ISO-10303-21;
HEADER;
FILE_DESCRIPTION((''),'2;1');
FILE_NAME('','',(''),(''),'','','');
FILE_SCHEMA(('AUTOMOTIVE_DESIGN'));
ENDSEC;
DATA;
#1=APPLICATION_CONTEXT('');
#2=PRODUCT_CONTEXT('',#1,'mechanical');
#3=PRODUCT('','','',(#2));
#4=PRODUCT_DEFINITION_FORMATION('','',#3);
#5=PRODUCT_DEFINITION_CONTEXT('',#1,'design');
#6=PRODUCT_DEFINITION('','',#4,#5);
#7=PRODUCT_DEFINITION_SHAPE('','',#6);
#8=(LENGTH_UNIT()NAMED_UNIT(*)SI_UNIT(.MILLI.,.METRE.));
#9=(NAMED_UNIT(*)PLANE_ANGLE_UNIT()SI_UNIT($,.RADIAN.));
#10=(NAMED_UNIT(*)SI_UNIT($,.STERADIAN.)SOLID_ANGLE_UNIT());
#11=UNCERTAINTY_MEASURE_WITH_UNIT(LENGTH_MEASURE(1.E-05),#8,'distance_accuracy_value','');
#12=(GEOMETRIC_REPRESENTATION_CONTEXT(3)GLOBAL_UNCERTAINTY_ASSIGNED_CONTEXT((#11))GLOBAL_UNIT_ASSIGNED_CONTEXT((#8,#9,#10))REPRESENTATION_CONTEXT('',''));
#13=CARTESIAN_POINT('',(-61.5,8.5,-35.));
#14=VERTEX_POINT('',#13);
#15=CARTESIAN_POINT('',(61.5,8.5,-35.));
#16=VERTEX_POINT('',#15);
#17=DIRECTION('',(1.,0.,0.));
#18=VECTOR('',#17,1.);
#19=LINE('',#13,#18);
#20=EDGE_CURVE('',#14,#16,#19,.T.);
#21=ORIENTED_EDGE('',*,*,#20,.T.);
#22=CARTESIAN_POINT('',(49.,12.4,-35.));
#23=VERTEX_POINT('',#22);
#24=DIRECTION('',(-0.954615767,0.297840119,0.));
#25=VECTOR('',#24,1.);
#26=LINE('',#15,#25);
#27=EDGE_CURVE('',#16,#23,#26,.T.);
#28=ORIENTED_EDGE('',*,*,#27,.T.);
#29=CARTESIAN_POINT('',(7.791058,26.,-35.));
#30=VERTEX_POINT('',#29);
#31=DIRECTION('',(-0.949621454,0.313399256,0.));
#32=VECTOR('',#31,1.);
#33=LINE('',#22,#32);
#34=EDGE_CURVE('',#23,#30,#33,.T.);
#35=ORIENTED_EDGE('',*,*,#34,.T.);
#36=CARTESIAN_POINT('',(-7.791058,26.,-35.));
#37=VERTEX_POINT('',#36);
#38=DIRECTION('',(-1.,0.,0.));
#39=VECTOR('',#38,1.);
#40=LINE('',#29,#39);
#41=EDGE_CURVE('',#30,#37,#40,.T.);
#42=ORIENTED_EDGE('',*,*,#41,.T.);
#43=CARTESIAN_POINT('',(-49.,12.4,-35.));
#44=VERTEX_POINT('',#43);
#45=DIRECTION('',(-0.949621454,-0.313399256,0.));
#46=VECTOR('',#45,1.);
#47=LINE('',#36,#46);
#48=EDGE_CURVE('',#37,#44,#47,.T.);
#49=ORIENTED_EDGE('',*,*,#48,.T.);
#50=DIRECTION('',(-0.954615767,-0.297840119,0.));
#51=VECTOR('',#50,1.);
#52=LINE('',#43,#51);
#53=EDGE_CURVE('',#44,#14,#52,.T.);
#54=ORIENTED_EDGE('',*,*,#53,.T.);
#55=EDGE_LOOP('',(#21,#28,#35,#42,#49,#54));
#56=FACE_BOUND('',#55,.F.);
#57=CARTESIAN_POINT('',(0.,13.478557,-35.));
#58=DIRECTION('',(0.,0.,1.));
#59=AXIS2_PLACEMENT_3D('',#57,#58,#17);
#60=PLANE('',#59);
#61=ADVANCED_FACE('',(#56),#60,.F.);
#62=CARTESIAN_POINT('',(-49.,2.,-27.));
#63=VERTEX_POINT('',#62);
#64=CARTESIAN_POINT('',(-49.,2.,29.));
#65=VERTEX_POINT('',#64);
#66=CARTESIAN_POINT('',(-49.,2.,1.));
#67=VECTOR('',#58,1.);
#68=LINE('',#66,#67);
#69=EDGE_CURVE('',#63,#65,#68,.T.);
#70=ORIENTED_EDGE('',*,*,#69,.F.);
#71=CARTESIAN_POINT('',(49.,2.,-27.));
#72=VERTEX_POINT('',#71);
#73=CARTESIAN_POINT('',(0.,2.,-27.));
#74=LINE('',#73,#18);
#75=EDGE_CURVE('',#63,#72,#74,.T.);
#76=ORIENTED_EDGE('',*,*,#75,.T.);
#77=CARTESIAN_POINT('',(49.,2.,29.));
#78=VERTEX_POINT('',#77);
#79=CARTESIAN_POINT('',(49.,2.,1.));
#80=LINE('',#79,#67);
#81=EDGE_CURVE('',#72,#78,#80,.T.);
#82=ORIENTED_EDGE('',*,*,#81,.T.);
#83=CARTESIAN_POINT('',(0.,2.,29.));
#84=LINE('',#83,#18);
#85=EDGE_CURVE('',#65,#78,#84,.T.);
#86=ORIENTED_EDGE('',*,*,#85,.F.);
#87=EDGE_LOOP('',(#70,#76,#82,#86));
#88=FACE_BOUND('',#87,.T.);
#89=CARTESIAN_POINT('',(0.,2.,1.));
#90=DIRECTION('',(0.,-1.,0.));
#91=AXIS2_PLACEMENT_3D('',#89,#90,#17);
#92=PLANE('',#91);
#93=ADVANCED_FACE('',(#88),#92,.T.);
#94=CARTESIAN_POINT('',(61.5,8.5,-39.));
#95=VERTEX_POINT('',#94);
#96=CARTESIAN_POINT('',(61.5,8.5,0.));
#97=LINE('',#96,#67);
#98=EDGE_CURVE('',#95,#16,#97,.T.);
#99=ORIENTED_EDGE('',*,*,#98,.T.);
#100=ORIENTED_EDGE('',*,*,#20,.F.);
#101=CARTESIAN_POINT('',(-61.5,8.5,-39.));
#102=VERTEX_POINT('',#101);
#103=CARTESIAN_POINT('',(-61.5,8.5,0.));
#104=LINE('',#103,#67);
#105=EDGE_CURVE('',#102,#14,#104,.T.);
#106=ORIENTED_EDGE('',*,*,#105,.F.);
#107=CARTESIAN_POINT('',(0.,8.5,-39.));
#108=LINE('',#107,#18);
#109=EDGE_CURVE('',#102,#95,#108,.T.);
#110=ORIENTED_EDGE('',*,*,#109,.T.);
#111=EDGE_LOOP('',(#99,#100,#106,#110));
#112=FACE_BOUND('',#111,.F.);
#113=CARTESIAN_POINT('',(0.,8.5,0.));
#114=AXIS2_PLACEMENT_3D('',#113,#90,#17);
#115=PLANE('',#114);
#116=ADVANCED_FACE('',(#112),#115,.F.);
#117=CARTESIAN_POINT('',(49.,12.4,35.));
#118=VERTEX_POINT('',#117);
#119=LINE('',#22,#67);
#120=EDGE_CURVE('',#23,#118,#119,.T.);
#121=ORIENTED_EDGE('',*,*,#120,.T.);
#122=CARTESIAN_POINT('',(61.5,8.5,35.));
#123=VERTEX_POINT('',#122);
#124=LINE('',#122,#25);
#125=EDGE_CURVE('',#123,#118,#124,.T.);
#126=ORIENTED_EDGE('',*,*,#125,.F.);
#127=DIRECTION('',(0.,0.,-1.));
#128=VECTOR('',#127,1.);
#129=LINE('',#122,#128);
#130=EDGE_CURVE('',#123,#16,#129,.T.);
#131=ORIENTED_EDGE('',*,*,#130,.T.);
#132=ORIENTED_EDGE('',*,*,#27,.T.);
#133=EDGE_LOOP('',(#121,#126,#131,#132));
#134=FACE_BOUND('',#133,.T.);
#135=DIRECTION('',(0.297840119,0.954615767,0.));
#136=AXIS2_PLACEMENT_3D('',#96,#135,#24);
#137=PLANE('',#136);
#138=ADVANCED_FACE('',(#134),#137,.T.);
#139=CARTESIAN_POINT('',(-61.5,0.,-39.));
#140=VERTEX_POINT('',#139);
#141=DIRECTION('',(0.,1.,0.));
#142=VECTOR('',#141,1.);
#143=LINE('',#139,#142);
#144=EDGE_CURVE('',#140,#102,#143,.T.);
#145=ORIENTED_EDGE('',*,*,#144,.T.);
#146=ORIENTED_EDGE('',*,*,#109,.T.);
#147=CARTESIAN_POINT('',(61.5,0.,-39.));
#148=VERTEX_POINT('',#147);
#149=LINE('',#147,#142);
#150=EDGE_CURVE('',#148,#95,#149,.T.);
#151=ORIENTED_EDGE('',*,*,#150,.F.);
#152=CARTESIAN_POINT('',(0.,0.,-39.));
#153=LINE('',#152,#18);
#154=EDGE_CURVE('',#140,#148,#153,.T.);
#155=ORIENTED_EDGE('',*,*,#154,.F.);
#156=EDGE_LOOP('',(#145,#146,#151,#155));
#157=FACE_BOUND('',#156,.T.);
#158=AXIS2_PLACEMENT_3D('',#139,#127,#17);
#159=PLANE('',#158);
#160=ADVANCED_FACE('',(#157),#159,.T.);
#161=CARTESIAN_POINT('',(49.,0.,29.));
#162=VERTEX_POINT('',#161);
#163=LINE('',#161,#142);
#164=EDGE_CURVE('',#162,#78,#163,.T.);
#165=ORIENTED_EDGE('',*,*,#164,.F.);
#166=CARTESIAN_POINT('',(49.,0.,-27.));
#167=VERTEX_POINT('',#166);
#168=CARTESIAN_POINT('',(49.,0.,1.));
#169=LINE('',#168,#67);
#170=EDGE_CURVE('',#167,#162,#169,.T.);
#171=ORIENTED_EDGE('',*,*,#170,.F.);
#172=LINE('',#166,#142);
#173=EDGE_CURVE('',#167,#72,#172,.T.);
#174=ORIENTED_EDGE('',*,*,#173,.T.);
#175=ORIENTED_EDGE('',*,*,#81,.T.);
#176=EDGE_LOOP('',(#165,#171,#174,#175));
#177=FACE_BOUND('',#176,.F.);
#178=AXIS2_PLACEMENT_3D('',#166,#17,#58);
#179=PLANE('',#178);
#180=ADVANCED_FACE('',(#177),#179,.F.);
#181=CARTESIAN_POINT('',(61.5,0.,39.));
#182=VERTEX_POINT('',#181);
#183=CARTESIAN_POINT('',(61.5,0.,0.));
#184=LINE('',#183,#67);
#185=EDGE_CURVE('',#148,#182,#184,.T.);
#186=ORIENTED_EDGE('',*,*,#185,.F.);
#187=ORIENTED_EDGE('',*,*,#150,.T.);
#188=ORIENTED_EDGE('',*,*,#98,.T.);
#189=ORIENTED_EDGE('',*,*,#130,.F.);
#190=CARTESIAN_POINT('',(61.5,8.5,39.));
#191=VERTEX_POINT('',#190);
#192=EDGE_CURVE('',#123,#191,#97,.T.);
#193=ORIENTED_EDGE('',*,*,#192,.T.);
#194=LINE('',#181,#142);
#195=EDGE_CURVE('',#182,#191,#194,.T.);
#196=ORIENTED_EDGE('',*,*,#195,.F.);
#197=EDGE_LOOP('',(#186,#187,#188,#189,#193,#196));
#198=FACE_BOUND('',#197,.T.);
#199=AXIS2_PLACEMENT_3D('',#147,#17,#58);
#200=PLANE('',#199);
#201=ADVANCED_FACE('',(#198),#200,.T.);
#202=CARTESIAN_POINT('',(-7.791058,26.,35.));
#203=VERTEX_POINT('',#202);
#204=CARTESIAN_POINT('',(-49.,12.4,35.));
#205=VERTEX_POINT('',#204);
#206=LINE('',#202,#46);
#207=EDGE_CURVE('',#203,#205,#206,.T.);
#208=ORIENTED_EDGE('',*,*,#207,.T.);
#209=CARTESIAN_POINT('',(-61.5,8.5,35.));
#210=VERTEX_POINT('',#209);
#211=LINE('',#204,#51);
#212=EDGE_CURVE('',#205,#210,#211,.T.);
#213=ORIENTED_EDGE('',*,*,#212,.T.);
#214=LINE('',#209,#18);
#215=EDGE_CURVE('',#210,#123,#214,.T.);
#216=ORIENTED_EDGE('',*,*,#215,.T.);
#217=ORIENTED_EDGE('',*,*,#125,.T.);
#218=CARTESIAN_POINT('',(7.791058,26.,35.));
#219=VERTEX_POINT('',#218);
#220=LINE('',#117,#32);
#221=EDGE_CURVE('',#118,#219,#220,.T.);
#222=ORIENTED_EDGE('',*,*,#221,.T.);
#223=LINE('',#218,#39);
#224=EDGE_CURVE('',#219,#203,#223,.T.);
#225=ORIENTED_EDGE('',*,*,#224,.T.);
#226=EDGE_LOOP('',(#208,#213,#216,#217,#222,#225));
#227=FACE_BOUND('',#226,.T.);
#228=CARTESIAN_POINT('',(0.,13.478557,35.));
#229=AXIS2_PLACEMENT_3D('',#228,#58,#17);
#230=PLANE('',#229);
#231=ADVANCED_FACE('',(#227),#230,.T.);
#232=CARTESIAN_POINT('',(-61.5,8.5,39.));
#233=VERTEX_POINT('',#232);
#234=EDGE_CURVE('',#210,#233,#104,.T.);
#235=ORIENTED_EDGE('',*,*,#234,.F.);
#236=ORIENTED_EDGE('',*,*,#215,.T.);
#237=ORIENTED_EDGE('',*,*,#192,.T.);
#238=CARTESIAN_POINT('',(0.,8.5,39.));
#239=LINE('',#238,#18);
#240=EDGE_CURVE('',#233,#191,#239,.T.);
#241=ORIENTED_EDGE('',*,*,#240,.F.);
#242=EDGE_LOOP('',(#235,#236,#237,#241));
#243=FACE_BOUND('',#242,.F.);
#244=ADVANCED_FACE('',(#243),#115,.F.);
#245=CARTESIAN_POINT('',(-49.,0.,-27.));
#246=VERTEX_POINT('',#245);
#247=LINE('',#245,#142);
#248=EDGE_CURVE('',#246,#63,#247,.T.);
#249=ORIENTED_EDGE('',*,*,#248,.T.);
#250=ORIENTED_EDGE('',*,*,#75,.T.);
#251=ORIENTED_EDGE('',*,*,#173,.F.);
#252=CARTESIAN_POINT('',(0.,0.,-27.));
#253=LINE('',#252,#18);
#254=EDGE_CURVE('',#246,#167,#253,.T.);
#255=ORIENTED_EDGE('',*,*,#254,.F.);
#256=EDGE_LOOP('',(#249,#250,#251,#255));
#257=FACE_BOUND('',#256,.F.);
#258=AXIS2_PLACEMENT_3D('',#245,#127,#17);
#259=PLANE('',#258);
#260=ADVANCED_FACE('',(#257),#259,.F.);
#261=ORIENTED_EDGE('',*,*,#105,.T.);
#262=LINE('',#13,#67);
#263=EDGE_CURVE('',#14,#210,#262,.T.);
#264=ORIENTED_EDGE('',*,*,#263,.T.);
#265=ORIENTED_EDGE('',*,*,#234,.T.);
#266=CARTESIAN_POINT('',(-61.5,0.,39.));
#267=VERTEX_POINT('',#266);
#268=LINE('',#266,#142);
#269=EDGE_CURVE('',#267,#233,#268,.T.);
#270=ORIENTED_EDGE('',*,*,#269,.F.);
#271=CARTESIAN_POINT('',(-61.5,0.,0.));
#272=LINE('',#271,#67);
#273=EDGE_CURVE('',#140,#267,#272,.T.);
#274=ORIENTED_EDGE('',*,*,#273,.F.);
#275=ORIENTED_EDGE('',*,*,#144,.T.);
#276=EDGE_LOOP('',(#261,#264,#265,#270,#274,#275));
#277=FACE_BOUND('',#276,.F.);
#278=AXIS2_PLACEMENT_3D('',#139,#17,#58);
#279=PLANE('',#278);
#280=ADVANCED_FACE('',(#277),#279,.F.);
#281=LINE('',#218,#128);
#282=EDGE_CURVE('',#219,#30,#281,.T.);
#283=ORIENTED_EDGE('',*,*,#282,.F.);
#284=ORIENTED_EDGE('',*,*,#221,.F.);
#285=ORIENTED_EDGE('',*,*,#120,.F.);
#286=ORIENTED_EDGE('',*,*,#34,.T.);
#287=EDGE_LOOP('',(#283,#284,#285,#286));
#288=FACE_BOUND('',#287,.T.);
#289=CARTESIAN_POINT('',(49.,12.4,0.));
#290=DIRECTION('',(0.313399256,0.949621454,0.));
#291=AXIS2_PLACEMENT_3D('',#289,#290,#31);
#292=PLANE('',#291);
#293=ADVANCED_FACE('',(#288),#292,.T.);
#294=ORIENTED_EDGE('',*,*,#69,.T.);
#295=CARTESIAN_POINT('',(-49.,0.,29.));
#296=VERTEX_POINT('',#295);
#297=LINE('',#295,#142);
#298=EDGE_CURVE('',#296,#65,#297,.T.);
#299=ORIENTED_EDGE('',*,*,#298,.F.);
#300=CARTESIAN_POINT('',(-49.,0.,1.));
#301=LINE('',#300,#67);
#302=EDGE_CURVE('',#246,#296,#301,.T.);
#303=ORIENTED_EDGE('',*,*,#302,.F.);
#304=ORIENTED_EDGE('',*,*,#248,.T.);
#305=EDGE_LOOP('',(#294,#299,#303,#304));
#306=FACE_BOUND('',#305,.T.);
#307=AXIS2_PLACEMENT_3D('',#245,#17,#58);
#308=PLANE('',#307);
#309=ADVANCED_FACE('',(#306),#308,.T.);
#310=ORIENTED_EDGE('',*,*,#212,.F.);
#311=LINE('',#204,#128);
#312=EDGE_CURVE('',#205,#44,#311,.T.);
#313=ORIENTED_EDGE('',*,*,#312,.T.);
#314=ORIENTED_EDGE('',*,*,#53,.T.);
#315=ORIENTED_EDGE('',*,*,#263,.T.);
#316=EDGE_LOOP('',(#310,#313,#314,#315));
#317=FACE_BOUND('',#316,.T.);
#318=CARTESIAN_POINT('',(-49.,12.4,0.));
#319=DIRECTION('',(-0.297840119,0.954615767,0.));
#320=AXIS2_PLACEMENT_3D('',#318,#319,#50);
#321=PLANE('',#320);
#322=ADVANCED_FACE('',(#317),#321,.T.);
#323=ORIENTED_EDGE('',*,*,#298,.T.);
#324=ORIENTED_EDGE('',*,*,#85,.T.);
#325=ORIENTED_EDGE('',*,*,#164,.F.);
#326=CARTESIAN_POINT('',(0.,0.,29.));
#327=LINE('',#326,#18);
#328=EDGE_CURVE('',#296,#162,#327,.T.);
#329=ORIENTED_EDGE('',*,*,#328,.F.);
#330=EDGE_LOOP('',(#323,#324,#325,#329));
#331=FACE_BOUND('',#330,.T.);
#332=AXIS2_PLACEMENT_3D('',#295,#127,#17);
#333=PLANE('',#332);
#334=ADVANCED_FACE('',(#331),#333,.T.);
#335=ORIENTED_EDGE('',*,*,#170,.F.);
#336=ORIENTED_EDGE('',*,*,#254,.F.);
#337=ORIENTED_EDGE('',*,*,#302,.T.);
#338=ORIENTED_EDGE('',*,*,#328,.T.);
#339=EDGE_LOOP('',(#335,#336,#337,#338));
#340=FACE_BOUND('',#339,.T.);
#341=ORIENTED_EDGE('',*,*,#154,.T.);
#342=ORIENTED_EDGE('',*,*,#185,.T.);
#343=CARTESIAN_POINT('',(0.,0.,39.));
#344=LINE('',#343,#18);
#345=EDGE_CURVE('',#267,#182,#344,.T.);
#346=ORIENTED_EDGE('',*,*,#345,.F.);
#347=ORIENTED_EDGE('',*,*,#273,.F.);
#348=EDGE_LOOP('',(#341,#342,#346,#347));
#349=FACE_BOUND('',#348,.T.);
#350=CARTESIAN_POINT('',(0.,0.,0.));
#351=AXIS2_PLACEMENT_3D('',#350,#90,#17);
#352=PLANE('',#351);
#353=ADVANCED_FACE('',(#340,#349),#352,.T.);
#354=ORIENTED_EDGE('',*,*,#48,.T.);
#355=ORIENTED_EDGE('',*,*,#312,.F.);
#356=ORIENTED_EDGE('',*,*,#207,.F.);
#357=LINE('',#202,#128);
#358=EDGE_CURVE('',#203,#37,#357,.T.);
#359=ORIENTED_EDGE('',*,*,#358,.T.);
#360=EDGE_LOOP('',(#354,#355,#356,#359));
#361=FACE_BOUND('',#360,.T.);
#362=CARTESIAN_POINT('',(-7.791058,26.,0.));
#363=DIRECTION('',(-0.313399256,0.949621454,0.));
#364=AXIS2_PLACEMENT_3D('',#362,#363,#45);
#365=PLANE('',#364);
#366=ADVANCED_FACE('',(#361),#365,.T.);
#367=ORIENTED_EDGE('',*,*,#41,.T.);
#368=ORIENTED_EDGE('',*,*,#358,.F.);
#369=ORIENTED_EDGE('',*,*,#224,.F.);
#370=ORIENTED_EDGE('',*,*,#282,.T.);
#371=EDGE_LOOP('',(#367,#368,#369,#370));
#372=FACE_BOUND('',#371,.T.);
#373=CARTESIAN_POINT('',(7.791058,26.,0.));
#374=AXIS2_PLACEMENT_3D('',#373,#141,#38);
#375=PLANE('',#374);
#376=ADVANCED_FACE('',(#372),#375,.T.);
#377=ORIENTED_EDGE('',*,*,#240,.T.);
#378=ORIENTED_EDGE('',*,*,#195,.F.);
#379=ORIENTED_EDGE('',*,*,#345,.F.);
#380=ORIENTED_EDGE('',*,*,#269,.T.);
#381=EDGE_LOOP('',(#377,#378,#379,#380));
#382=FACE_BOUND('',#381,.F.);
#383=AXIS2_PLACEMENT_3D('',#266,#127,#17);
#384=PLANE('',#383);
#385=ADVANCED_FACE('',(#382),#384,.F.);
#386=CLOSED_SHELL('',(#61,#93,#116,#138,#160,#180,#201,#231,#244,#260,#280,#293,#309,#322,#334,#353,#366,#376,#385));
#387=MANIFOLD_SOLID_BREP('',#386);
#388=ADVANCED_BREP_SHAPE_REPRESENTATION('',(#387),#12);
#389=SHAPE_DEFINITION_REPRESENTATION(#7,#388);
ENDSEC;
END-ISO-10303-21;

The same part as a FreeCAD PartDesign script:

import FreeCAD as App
import Part
import Sketcher

V = App.Vector


def add_polygon(sketch, points):
    """Adds a closed chain of lines whose ends are joined by coincident constraints."""
    first, n = sketch.GeometryCount, len(points)
    for a, b in zip(points, points[1:] + points[:1]):
        sketch.addGeometry(Part.LineSegment(App.Vector(*a, 0), App.Vector(*b, 0)), False)
    for i in range(n):
        sketch.addConstraint(Sketcher.Constraint("Coincident", first + i, 2, first + (i + 1) % n, 1))

doc = App.newDocument("Part")
body = doc.addObject("PartDesign::Body", "Body")

# Sketch on XZ plane
sketch1 = doc.addObject("Sketcher::SketchObject", "Sketch")
body.addObject(sketch1)
sketch1.AttachmentSupport = (doc.XZ_Plane, [""])
sketch1.MapMode = "FlatFace"
add_polygon(sketch1, [(-62, 39), (-62, -39), (62, -39), (62, 39)])  # lines 0-3
sketch1.addConstraint(Sketcher.Constraint("Vertical", 0))
sketch1.addConstraint(Sketcher.Constraint("Horizontal", 1))
sketch1.addConstraint(Sketcher.Constraint("Vertical", 2))
sketch1.addConstraint(Sketcher.Constraint("Horizontal", 3))
sketch1.addConstraint(Sketcher.Constraint("Symmetric", 0, 2, 2, 2, -1, 1))
sketch1.addConstraint(Sketcher.Constraint("DistanceX", 1, 1, 1, 2, 123.0))
sketch1.addConstraint(Sketcher.Constraint("DistanceY", 0, 2, 0, 1, 78.0))
pad1 = doc.addObject("PartDesign::Pad", "Pad")
body.addObject(pad1)
pad1.Profile = sketch1
pad1.Length = 8.5
pad1.Reversed = True

# Sketch on XZ plane
sketch2 = doc.addObject("Sketcher::SketchObject", "Sketch001")
body.addObject(sketch2)
sketch2.AttachmentSupport = (doc.XZ_Plane, [""])
sketch2.MapMode = "FlatFace"
add_polygon(sketch2, [(-49, 29), (-49, -27), (49, -27), (49, 29)])  # lines 0-3
sketch2.addConstraint(Sketcher.Constraint("Vertical", 0))
sketch2.addConstraint(Sketcher.Constraint("Horizontal", 1))
sketch2.addConstraint(Sketcher.Constraint("Vertical", 2))
sketch2.addConstraint(Sketcher.Constraint("Horizontal", 3))
sketch2.addConstraint(Sketcher.Constraint("DistanceX", 1, 1, 1, 2, 98.0))
sketch2.addConstraint(Sketcher.Constraint("DistanceY", 0, 2, 0, 1, 56.0))
sketch2.addConstraint(Sketcher.Constraint("DistanceX", 0, 2, -1, 1, 49.0))
sketch2.addConstraint(Sketcher.Constraint("DistanceY", 0, 2, -1, 1, 27.0))
pocket1 = doc.addObject("PartDesign::Pocket", "Pocket")
body.addObject(pocket1)
pocket1.Profile = sketch2
pocket1.Length = 2

# Sketch on XY plane
sketch3 = doc.addObject("Sketcher::SketchObject", "Sketch002")
body.addObject(sketch3)
sketch3.AttachmentSupport = (doc.XY_Plane, [""])
sketch3.MapMode = "FlatFace"
add_polygon(sketch3, [(-49, 12), (-62, 8), (62, 8), (49, 12), (8, 26), (-8, 26)])  # lines 0-5
sketch3.addConstraint(Sketcher.Constraint("Horizontal", 1))
sketch3.addConstraint(Sketcher.Constraint("Horizontal", 4))
sketch3.addConstraint(Sketcher.Constraint("Symmetric", 2, 2, 5, 2, -2))
sketch3.addConstraint(Sketcher.Constraint("Equal", 0, 2))
sketch3.addConstraint(Sketcher.Constraint("Equal", 3, 5))
sketch3.addConstraint(Sketcher.Constraint("DistanceX", 1, 1, 1, 2, 123.0))
sketch3.addConstraint(Sketcher.Constraint("DistanceX", -1, 1, 2, 2, 49.0))
sketch3.addConstraint(Sketcher.Constraint("DistanceY", -1, 1, 3, 2, 26.0))
sketch3.addConstraint(Sketcher.Constraint("DistanceY", -1, 1, 0, 2, 8.5))
sketch3.addConstraint(Sketcher.Constraint("DistanceY", -1, 1, 2, 2, 12.4))
sketch3.addConstraint(Sketcher.Constraint("DistanceX", 4, 2, 4, 1, 15.582116))
pad2 = doc.addObject("PartDesign::Pad", "Pad001")
body.addObject(pad2)
pad2.Profile = sketch3
pad2.Type = "TwoLengths"
pad2.Length = 35
pad2.Length2 = 35

doc.recompute()
